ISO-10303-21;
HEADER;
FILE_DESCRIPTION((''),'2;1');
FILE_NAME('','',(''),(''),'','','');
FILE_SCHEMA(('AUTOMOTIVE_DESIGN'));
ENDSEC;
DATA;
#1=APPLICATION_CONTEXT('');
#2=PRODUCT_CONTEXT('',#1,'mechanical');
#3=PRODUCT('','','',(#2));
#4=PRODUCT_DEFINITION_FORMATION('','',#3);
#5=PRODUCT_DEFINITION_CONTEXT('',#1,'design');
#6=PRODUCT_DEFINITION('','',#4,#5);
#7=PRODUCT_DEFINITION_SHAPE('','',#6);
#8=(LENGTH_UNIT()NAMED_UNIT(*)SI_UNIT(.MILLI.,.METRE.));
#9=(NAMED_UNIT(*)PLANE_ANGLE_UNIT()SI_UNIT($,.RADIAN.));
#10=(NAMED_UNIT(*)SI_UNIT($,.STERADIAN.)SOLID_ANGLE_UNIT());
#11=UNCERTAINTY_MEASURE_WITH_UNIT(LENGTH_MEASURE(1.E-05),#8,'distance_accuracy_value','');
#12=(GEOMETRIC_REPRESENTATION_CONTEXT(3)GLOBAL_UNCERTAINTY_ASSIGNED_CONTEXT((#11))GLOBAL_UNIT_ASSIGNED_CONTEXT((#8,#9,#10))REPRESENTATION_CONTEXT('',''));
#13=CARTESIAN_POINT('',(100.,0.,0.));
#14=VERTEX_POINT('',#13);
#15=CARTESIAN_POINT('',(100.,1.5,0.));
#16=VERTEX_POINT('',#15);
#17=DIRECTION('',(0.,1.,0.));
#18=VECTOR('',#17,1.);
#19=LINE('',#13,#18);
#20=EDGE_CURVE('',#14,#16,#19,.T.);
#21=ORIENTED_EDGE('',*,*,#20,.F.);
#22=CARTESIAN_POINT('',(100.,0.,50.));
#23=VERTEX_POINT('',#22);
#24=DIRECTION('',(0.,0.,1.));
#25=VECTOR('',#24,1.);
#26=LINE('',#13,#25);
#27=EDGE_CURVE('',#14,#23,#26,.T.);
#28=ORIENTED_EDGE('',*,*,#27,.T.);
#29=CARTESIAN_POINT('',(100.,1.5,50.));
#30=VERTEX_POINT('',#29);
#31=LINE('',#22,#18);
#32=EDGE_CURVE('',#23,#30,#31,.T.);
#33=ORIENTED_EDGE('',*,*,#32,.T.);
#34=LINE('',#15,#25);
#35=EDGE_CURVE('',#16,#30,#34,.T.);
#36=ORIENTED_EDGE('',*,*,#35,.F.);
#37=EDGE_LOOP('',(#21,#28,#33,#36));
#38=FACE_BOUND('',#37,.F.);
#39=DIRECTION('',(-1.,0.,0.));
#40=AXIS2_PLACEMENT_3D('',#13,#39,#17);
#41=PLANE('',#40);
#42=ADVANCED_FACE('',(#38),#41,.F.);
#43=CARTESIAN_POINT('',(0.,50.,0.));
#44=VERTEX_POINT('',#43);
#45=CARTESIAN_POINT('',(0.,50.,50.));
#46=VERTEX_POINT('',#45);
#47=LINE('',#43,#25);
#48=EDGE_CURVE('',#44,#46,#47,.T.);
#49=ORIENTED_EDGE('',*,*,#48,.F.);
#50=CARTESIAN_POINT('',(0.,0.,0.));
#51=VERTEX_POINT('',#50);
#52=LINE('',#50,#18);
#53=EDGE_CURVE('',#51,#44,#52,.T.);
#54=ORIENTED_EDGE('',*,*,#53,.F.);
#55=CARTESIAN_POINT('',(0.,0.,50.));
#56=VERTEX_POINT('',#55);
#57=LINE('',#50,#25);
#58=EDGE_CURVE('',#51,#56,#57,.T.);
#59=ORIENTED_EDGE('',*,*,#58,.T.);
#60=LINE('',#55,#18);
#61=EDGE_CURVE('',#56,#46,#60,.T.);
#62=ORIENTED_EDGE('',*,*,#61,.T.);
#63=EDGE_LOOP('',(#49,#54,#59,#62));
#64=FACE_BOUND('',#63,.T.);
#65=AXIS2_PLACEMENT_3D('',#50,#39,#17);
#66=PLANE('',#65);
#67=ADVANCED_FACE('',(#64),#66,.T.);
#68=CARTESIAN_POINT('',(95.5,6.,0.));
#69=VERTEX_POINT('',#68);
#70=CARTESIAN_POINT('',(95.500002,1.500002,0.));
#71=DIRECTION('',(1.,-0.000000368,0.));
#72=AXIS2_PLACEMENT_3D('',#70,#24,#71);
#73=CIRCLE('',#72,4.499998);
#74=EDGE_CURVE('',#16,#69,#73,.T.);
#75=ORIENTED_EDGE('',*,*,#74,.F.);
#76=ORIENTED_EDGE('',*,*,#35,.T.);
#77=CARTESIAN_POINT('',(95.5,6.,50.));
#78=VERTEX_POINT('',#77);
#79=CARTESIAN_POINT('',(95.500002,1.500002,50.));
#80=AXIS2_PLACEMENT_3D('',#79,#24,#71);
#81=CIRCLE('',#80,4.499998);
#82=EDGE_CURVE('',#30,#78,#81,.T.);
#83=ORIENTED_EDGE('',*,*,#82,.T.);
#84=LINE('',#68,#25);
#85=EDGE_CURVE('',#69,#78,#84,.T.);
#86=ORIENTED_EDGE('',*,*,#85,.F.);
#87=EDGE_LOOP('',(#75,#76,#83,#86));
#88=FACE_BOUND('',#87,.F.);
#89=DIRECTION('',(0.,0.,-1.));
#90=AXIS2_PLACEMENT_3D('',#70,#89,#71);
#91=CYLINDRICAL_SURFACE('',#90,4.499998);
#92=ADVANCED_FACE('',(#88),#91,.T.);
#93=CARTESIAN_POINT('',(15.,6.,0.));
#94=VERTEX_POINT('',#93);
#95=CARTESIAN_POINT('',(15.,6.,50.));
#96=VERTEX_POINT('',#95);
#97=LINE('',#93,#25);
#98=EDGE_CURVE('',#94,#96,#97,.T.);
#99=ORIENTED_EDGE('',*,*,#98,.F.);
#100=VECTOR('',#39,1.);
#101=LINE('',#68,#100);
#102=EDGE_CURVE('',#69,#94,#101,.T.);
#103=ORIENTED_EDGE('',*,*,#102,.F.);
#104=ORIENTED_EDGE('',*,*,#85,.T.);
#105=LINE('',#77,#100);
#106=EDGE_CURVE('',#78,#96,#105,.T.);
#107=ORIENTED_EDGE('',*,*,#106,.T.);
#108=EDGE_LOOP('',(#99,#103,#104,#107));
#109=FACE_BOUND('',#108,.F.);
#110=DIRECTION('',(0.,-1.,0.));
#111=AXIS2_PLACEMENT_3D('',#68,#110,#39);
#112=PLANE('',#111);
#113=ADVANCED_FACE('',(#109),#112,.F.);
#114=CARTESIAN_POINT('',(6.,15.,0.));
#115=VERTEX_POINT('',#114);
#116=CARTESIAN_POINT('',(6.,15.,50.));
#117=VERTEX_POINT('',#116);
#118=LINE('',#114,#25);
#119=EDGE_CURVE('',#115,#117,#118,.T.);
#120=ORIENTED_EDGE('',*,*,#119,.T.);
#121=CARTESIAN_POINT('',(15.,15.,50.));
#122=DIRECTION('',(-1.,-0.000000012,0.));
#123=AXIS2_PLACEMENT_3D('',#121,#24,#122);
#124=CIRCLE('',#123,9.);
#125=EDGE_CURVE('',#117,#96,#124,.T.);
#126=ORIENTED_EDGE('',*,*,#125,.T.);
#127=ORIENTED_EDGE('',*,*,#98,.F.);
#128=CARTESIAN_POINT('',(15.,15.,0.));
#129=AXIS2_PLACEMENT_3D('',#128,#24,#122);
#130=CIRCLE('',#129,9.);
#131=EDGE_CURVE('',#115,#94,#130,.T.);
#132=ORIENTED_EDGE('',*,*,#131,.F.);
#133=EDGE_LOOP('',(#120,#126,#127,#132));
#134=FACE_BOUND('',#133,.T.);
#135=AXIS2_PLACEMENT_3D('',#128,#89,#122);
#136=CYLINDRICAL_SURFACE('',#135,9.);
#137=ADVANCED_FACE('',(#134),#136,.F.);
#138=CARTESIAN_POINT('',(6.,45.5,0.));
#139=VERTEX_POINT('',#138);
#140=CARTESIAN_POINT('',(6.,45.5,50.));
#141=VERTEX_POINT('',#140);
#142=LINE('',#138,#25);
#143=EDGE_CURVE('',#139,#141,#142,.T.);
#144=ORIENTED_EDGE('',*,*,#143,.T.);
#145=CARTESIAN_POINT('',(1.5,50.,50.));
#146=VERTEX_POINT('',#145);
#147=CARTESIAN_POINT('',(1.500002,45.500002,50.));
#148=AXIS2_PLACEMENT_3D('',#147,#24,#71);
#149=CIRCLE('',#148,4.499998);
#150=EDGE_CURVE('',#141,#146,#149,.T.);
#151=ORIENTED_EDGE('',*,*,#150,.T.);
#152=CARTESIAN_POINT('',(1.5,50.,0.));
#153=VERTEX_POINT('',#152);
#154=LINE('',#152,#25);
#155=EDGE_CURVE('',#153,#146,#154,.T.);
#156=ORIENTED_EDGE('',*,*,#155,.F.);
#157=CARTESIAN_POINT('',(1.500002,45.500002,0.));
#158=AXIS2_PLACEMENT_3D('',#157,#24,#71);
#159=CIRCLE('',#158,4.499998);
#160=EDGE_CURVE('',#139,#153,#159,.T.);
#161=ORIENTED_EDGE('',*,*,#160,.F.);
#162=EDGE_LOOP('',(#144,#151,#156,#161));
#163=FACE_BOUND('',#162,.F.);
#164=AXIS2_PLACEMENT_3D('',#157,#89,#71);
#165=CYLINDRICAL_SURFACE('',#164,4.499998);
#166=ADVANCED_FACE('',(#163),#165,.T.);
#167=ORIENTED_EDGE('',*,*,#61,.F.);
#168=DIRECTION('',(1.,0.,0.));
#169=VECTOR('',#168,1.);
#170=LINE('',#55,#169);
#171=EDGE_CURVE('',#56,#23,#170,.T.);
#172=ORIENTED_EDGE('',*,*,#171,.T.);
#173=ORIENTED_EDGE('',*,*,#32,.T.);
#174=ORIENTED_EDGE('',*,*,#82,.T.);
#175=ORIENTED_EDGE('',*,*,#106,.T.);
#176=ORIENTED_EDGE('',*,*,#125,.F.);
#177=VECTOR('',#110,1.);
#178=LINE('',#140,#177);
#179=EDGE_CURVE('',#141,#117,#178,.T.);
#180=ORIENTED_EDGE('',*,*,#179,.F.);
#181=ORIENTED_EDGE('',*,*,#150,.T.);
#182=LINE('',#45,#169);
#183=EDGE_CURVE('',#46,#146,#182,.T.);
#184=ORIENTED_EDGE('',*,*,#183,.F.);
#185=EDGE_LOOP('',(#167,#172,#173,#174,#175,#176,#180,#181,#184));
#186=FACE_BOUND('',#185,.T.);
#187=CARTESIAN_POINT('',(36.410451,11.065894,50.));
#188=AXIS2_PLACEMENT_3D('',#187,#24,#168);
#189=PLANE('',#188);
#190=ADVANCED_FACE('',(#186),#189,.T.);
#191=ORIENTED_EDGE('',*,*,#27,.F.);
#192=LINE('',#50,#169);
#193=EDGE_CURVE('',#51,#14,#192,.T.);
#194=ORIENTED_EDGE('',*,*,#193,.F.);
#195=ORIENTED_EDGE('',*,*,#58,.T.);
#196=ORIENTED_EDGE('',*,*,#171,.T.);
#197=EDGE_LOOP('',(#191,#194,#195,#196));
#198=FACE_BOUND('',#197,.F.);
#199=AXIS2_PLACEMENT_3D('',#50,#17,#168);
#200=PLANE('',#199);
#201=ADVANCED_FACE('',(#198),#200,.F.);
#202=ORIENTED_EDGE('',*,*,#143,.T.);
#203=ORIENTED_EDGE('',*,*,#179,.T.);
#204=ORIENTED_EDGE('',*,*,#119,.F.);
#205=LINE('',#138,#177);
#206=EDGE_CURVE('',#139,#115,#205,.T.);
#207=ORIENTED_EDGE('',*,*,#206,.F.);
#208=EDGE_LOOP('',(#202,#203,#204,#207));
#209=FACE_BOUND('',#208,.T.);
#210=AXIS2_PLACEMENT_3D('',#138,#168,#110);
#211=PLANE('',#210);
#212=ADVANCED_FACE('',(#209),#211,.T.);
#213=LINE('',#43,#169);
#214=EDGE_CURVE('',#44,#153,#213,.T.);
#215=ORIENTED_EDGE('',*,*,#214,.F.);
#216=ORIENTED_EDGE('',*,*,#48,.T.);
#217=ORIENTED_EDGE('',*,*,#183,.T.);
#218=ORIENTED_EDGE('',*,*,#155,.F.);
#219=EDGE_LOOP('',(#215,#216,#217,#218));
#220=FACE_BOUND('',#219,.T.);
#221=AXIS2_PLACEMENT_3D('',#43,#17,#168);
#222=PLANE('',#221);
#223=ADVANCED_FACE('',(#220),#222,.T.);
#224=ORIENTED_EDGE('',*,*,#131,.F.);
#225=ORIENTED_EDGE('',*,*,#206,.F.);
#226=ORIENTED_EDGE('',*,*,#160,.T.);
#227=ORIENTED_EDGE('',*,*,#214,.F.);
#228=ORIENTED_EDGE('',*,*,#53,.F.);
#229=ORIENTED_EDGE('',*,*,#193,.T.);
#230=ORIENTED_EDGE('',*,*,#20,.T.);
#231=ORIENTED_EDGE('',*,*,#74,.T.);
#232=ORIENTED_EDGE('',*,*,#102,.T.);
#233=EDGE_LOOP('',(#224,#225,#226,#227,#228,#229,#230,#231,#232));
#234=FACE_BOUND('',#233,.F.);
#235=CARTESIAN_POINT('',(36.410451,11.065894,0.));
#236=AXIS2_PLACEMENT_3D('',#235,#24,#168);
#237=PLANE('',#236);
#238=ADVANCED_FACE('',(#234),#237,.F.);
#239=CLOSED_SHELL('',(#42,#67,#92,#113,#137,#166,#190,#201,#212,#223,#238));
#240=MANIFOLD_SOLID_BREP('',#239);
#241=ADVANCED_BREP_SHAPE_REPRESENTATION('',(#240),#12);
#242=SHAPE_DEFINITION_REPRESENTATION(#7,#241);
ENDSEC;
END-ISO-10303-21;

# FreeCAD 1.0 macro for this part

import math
import FreeCAD as App
import Part
import Sketcher

V = App.Vector
Q = App.Units.Quantity

doc = App.newDocument("Part")
body = doc.addObject("PartDesign::Body", "Body")

sketch1 = body.newObject("Sketcher::SketchObject", "Sketch")
sketch1.AttachmentSupport = (doc.getObject("XY_Plane"), [""])
sketch1.MapMode = "FlatFace"
sketch1.addGeometry([
    Part.LineSegment(V(0, 0, 0), V(100, 0, 0)),
    Part.LineSegment(V(100, 0, 0), V(100, 1.5, 0)),
    Part.ArcOfCircle(Part.Circle(V(95.500002, 1.500002, 0), V(0, 0, 1), 4.499998), math.radians(-0.000021), math.radians(90.000021)),
    Part.LineSegment(V(95.5, 6, 0), V(15, 6, 0)),
    Part.ArcOfCircle(Part.Circle(V(15, 15, 0), V(0, 0, 1), 9), math.radians(-179.999999), math.radians(-90.000001)),
    Part.LineSegment(V(6, 15, 0), V(6, 45.5, 0)),
    Part.ArcOfCircle(Part.Circle(V(1.500002, 45.500002, 0), V(0, 0, 1), 4.499998), math.radians(-0.000021), math.radians(90.000021)),
    Part.LineSegment(V(1.5, 50, 0), V(0, 50, 0)),
    Part.LineSegment(V(0, 50, 0), V(0, 0, 0)),
], False)
sketch1.addConstraint([
    Sketcher.Constraint("Coincident", 0, 2, 1, 1),
    Sketcher.Constraint("Tangent", 1, 2, 2, 1),
    Sketcher.Constraint("Tangent", 2, 2, 3, 1),
    Sketcher.Constraint("Tangent", 3, 2, 4, 2),
    Sketcher.Constraint("Tangent", 4, 1, 5, 1),
    Sketcher.Constraint("Tangent", 5, 2, 6, 1),
    Sketcher.Constraint("Tangent", 6, 2, 7, 1),
    Sketcher.Constraint("Coincident", 7, 2, 8, 1),
    Sketcher.Constraint("Coincident", 8, 2, 0, 1),
    Sketcher.Constraint("Horizontal", 0),
    Sketcher.Constraint("Vertical", 1),
    Sketcher.Constraint("Horizontal", 3),
    Sketcher.Constraint("Vertical", 5),
    Sketcher.Constraint("Horizontal", 7),
    Sketcher.Constraint("Vertical", 8),
    Sketcher.Constraint("Coincident", 8, 2, -1, 1),
    Sketcher.Constraint("Equal", 2, 6),
    Sketcher.Constraint("Equal", 7, 1),
    Sketcher.Constraint("Radius", 4, Q("9 mm")),
    Sketcher.Constraint("Radius", 2, Q("4.499998 mm")),
    Sketcher.Constraint("DistanceX", 0, 1, 0, 2, Q("100 mm")),
    Sketcher.Constraint("DistanceY", 8, 2, 8, 1, Q("50 mm")),
    Sketcher.Constraint("DistanceX", 3, 2, 3, 1, Q("80.5 mm")),
])
pad1 = body.newObject("PartDesign::Pad", "Pad")
pad1.Profile = sketch1
pad1.Length = 50

doc.recompute()
